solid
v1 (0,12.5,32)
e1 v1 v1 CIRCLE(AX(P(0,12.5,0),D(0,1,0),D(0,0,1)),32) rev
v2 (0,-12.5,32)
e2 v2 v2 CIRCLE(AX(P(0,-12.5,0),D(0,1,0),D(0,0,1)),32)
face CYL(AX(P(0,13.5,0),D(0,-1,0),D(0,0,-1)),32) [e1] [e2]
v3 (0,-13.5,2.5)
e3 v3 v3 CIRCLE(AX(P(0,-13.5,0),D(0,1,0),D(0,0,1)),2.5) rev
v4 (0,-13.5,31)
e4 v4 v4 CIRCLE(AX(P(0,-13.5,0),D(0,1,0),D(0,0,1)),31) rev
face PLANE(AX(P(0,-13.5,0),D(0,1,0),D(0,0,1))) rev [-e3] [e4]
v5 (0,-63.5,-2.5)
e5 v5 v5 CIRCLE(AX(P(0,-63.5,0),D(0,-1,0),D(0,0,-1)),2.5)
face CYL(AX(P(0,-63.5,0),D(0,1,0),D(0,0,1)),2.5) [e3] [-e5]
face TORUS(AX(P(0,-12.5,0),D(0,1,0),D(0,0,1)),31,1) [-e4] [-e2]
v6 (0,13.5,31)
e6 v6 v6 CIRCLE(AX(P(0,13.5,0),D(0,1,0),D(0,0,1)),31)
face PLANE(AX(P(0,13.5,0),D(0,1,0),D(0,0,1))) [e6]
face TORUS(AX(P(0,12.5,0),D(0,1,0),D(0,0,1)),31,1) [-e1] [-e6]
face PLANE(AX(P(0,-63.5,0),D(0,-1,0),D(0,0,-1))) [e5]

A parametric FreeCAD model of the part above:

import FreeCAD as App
import Part
import Sketcher


def edges_at(feature, points):
    """Names of the edges that pass closest to the given points."""
    edges = feature.Shape.Edges
    near = lambda p: min(range(len(edges)), key=lambda i: edges[i].distToShape(Part.Vertex(*p))[0])
    return sorted({f"Edge{near(p) + 1}" for p in points})

doc = App.newDocument("Part")
body = doc.addObject("PartDesign::Body", "Body")

# Sketch on XZ plane
sketch1 = body.newObject("Sketcher::SketchObject", "Sketch")
sketch1.AttachmentSupport = (doc.getObject("XZ_Plane"), [""])
sketch1.MapMode = "FlatFace"
sketch1.addGeometry(Part.Circle(App.Vector(0, 0, 0), App.Vector(0, 0, 1), 32), False)
sketch1.addConstraint([
    Sketcher.Constraint("Coincident", 0, 3, -1, 1),
    Sketcher.Constraint("Diameter", 0, 64.0),
])
pad1 = body.newObject("PartDesign::Pad", "Pad")
pad1.Profile = sketch1
pad1.Length = 27
pad1.Midplane = True
doc.recompute()

fillet = body.newObject("PartDesign::Fillet", "Fillet")
fillet.Base = (pad1, edges_at(pad1, [(0, -13.5, -32)]))
fillet.Radius = 1
doc.recompute()

fillet2 = body.newObject("PartDesign::Fillet", "Fillet001")
fillet2.Base = (fillet, edges_at(fillet, [(0, 13.5, -32)]))
fillet2.Radius = 1

# Sketch on XZ plane
sketch2 = body.newObject("Sketcher::SketchObject", "Sketch001")
sketch2.AttachmentSupport = (doc.getObject("XZ_Plane"), [""])
sketch2.MapMode = "FlatFace"
sketch2.AttachmentOffset = App.Placement(App.Vector(0, 0, 13.5), App.Rotation())
sketch2.addGeometry(Part.Circle(App.Vector(0, 0, 0), App.Vector(0, 0, 1), 2.5), False)
sketch2.addConstraint([
    Sketcher.Constraint("Coincident", 0, 3, -1, 1),
    Sketcher.Constraint("Diameter", 0, 5.0),
])
pad2 = body.newObject("PartDesign::Pad", "Pad001")
pad2.Profile = sketch2
pad2.Length = 50

doc.recompute()
